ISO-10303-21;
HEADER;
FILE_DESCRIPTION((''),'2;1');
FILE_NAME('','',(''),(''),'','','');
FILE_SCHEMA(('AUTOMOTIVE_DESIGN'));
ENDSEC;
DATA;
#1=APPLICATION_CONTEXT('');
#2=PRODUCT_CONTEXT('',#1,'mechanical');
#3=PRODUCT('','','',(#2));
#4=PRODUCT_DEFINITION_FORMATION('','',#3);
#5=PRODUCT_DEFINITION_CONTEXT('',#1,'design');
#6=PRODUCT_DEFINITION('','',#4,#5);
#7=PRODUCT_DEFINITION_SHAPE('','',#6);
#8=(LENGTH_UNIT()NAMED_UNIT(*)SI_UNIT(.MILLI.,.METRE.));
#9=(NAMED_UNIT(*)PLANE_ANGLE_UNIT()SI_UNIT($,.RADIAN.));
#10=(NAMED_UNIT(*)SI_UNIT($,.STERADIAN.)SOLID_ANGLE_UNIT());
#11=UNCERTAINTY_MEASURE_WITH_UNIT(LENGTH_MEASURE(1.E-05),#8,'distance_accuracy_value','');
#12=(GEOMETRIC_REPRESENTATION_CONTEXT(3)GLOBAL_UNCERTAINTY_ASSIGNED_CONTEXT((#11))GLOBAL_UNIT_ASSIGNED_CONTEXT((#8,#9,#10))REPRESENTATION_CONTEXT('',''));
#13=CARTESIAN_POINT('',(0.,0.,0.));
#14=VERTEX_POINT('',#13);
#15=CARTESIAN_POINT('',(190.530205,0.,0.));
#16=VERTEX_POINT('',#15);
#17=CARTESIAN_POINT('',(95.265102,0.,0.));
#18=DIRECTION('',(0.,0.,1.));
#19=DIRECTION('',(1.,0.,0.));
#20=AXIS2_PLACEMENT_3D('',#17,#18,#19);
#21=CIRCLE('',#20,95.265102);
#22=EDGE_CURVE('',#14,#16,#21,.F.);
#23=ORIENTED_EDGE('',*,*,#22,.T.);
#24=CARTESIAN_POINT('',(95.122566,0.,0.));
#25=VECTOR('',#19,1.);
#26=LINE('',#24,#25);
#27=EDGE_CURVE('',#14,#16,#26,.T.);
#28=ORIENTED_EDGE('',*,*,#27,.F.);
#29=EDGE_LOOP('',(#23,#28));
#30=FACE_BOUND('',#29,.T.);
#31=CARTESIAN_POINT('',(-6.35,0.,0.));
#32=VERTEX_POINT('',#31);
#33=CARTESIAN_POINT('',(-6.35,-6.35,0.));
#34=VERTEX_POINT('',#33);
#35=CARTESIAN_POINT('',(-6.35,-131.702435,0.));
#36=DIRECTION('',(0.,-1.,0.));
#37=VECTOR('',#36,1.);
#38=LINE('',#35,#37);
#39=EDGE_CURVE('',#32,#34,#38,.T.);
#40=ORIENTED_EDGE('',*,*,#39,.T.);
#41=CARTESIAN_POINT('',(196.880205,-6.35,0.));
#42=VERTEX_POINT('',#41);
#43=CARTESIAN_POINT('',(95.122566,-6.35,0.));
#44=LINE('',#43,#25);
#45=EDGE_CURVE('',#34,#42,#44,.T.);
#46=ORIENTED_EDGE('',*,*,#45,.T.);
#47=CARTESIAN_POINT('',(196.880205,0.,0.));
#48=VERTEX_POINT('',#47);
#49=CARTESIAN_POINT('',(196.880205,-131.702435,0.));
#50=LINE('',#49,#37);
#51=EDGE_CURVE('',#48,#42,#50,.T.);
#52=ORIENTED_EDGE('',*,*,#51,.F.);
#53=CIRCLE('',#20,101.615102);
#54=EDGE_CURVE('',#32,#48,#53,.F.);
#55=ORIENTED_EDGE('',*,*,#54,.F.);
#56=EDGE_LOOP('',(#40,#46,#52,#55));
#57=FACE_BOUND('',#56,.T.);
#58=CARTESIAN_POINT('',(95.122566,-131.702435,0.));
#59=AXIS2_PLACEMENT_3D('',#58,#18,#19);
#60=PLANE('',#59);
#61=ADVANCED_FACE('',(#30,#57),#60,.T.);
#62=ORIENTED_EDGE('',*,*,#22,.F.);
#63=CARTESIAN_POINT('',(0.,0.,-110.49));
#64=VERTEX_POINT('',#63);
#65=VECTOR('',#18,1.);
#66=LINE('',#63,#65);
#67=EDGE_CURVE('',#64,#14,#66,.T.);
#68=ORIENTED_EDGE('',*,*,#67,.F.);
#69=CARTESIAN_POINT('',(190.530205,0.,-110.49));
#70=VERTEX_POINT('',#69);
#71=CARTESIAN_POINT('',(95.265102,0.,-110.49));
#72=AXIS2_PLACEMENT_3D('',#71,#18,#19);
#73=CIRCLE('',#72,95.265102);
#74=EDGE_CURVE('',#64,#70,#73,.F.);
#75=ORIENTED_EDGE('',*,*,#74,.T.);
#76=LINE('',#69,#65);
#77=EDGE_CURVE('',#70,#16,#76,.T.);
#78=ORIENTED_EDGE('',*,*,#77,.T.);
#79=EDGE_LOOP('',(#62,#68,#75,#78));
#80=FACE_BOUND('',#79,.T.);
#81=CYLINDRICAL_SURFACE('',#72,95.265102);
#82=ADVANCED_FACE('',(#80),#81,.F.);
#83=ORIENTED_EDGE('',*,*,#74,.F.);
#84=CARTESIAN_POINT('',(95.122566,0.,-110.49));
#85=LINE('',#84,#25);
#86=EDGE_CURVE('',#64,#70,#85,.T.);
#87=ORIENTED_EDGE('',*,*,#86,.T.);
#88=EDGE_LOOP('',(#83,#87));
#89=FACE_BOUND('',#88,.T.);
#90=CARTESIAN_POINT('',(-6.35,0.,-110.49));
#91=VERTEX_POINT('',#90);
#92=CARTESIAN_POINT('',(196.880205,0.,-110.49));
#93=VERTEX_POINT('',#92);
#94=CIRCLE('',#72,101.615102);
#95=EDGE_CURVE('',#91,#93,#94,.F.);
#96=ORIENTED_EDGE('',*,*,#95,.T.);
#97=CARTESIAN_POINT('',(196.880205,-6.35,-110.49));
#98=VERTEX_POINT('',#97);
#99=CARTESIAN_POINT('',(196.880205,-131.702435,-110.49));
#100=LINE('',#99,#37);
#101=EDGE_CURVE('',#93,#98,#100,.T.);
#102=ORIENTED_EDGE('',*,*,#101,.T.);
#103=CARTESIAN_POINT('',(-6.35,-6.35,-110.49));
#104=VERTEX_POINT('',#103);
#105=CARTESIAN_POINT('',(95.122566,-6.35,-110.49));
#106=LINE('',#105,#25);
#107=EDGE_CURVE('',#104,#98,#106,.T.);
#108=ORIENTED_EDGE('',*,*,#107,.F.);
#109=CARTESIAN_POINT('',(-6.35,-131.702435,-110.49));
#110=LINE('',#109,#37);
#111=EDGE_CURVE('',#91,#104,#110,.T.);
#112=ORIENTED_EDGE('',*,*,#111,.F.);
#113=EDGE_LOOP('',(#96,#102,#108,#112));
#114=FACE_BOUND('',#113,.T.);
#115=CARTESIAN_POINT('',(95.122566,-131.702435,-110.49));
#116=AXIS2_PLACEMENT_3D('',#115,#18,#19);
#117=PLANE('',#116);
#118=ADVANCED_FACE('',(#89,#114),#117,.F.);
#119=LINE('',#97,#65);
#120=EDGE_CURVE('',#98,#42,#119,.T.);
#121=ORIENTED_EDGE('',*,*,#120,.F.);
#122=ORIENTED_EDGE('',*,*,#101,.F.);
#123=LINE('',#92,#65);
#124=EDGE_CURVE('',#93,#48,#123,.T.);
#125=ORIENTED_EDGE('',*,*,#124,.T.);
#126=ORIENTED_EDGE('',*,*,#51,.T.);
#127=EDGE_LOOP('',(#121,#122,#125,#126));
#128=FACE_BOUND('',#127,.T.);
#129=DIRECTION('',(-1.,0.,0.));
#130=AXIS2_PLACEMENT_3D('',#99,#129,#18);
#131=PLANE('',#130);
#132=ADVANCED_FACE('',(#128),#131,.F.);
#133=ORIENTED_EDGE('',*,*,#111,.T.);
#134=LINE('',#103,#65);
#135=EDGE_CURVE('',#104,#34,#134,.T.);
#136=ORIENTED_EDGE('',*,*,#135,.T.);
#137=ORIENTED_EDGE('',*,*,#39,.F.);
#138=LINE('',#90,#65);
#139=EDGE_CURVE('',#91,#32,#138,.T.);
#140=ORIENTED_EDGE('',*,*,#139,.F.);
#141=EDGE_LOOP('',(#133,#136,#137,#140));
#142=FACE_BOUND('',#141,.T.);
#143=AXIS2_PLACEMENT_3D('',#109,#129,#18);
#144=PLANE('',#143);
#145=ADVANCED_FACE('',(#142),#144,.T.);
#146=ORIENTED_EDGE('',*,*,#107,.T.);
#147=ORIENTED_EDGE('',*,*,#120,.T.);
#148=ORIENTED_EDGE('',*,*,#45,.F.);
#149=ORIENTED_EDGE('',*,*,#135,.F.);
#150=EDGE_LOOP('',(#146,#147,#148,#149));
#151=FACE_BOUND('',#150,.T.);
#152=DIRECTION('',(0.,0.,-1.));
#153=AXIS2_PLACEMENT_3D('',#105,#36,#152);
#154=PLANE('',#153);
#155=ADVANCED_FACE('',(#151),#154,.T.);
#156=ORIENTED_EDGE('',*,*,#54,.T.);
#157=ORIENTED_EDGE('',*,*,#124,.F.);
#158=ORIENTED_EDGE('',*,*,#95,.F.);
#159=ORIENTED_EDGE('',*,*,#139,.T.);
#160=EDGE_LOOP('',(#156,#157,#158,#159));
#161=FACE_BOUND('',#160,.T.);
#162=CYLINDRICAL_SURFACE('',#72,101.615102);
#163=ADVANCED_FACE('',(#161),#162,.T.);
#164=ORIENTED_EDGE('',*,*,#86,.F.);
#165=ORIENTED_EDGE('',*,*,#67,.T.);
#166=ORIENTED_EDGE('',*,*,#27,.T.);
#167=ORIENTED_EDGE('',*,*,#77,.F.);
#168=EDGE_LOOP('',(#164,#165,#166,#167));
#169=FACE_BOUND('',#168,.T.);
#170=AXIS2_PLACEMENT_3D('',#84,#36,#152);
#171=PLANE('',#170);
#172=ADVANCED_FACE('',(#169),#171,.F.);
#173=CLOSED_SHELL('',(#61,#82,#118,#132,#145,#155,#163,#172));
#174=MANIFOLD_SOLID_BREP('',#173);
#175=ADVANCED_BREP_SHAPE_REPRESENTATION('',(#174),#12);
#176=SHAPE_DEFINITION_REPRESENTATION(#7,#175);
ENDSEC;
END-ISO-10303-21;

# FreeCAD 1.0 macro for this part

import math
import FreeCAD as App
import Part
import Sketcher
Q = App.Units.Quantity

doc = App.newDocument("Part")
body = doc.addObject("PartDesign::Body", "Body")

# Sketch on XY plane
sketch1 = doc.addObject("Sketcher::SketchObject", "Sketch")
body.addObject(sketch1)
sketch1.AttachmentSupport = (doc.XY_Plane, [""])
sketch1.MapMode = "FlatFace"
sketch1.addGeometry([
    Part.ArcOfCircle(Part.Circle(App.Vector(95, 0, 0), App.Vector(0, 0, 1), 102), math.radians(0), math.radians(180)),  # 0
    Part.LineSegment(App.Vector(-6, 0, 0), App.Vector(-6, -6, 0)),  # 1
    Part.LineSegment(App.Vector(-6, -6, 0), App.Vector(197, -6, 0)),  # 2
    Part.LineSegment(App.Vector(197, -6, 0), App.Vector(197, 0, 0)),  # 3
    Part.ArcOfCircle(Part.Circle(App.Vector(95, 0, 0), App.Vector(0, 0, 1), 95), math.radians(0), math.radians(180)),  # 4
    Part.LineSegment(App.Vector(191, 0, 0), App.Vector(0, 0, 0)),  # 5
], False)
sketch1.addConstraint([
    Sketcher.Constraint("Tangent", 0, 2, 1, 1),
    Sketcher.Constraint("Coincident", 1, 2, 2, 1),
    Sketcher.Constraint("Coincident", 2, 2, 3, 1),
    Sketcher.Constraint("Tangent", 3, 2, 0, 1),
    Sketcher.Constraint("Coincident", 4, 1, 5, 1),
    Sketcher.Constraint("Coincident", 5, 2, 4, 2),
    Sketcher.Constraint("Vertical", 1),
    Sketcher.Constraint("Horizontal", 2),
    Sketcher.Constraint("Vertical", 3),
    Sketcher.Constraint("Horizontal", 5),
    Sketcher.Constraint("Coincident", 5, 2, -1, 1),
    Sketcher.Constraint("Coincident", 4, 3, 0, 3),
    Sketcher.Constraint("PointOnObject", 0, 3, -1),
    Sketcher.Constraint("DistanceY", 1, 2, 1, 1, Q("0.25 in")),
    Sketcher.Constraint("DistanceX", 0, 2, -1, 1, Q("0.25 in")),
    Sketcher.Constraint("Radius", 0, 101.615102),
])
pad1 = doc.addObject("PartDesign::Pad", "Pad")
body.addObject(pad1)
pad1.Profile = sketch1
pad1.Length = Q("4.35 in")
pad1.Reversed = True

doc.recompute()
